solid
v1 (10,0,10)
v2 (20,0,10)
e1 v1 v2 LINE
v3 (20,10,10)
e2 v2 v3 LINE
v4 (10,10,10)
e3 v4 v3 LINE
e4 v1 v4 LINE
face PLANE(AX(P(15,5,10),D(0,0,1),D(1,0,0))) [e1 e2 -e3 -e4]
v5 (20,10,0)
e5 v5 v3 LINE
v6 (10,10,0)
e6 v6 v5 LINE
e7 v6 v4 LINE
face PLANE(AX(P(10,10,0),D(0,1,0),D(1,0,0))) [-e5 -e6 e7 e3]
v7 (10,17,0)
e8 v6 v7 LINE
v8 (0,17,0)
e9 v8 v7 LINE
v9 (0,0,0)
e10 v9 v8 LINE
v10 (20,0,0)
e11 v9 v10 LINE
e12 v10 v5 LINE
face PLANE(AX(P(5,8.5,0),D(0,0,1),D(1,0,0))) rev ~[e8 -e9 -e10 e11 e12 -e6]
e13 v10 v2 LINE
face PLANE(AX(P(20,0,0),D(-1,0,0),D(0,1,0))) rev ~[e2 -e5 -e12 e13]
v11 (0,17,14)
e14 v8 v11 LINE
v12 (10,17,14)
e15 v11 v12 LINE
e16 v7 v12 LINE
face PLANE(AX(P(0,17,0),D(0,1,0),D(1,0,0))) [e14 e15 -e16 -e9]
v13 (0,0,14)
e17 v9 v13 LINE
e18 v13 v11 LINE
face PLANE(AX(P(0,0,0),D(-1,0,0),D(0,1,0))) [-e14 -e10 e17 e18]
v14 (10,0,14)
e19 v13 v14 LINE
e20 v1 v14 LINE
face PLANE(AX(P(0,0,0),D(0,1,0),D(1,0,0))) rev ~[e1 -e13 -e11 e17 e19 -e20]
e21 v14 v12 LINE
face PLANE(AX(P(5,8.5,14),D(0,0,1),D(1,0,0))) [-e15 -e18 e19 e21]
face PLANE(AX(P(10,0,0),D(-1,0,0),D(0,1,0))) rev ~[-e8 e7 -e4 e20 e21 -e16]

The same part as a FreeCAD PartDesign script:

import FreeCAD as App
import Part
import Sketcher

V = App.Vector
Q = App.Units.Quantity


def add_polygon(sketch, points):
    """Adds a closed chain of lines whose ends are joined by coincident constraints."""
    first, n = sketch.GeometryCount, len(points)
    for a, b in zip(points, points[1:] + points[:1]):
        sketch.addGeometry(Part.LineSegment(App.Vector(*a, 0), App.Vector(*b, 0)), False)
    for i in range(n):
        sketch.addConstraint(Sketcher.Constraint("Coincident", first + i, 2, first + (i + 1) % n, 1))

doc = App.newDocument("Part")
body = doc.addObject("PartDesign::Body", "Body")

# Sketch on XY plane
sketch1 = doc.addObject("Sketcher::SketchObject", "Sketch")
body.addObject(sketch1)
sketch1.AttachmentSupport = (doc.XY_Plane, [""])
sketch1.MapMode = "FlatFace"
add_polygon(sketch1, [(0, 17), (0, 0), (10, 0), (10, 17)])  # lines 0-3
sketch1.addConstraint([
    Sketcher.Constraint("Vertical", 0),
    Sketcher.Constraint("Horizontal", 1),
    Sketcher.Constraint("Vertical", 2),
    Sketcher.Constraint("Horizontal", 3),
    Sketcher.Constraint("Coincident", 0, 2, -1, 1),
    Sketcher.Constraint("DistanceX", 1, 1, 1, 2, Q("10 mm")),
    Sketcher.Constraint("DistanceY", 0, 2, 0, 1, Q("17 mm")),
])
pad1 = doc.addObject("PartDesign::Pad", "Pad")
body.addObject(pad1)
pad1.Profile = sketch1
pad1.Length = 14
body2 = doc.addObject("PartDesign::Body", "Body001")

# Sketch on XY plane
sketch2 = doc.addObject("Sketcher::SketchObject", "Sketch001")
body2.addObject(sketch2)
sketch2.AttachmentSupport = (doc.getObject("XY_Plane001"), [""])
sketch2.MapMode = "FlatFace"
add_polygon(sketch2, [(10, 10), (10, 0), (20, 0), (20, 10)])  # lines 0-3
sketch2.addConstraint([
    Sketcher.Constraint("Vertical", 0),
    Sketcher.Constraint("Horizontal", 1),
    Sketcher.Constraint("Vertical", 2),
    Sketcher.Constraint("Horizontal", 3),
    Sketcher.Constraint("PointOnObject", 0, 2, -1),
    Sketcher.Constraint("Equal", 3, 0),
    Sketcher.Constraint("DistanceX", 1, 1, 1, 2, Q("10 mm")),
    Sketcher.Constraint("DistanceX", -1, 1, 0, 2, Q("10 mm")),
])
pad2 = doc.addObject("PartDesign::Pad", "Pad001")
body2.addObject(pad2)
pad2.Profile = sketch2
pad2.Length = 10
doc.recompute()

boolean = doc.addObject("PartDesign::Boolean", "Boolean")
body2.addObject(boolean)
boolean.Type = "Fuse"
boolean.addObjects([body])

doc.recompute()
